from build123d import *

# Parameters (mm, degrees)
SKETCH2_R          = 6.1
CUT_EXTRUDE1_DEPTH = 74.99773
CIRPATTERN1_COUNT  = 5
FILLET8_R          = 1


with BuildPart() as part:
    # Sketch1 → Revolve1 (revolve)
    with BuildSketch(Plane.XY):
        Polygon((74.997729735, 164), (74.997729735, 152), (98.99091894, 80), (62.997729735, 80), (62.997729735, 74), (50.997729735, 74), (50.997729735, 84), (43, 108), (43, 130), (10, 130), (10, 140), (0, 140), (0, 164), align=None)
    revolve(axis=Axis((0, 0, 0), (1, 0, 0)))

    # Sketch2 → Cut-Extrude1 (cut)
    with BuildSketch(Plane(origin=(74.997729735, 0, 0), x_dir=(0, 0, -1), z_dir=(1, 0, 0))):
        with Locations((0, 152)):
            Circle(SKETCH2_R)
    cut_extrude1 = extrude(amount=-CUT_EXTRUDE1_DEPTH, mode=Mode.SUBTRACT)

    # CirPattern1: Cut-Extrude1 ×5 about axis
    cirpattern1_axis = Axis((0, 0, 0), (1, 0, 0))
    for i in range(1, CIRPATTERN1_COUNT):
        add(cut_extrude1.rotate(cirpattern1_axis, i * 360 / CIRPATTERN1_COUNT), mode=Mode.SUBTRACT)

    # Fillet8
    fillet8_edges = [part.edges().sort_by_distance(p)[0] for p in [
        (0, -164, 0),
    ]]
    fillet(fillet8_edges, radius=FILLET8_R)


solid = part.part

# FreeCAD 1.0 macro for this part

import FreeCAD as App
import Part
import Sketcher
from FreeCAD import Vector


def edges_at(feature, points):
    """Names of the edges that pass closest to the given points."""
    edges = feature.Shape.Edges
    near = lambda p: min(range(len(edges)), key=lambda i: edges[i].distToShape(Part.Vertex(*p))[0])
    return sorted({f"Edge{near(p) + 1}" for p in points})


def add_polygon(sketch, points):
    """Adds a closed chain of lines whose ends are joined by coincident constraints."""
    first, n = sketch.GeometryCount, len(points)
    for a, b in zip(points, points[1:] + points[:1]):
        sketch.addGeometry(Part.LineSegment(App.Vector(*a, 0), App.Vector(*b, 0)), False)
    for i in range(n):
        sketch.addConstraint(Sketcher.Constraint("Coincident", first + i, 2, first + (i + 1) % n, 1))

doc = App.newDocument("Part")
body = doc.addObject("PartDesign::Body", "Body")

sketch1 = doc.addObject("Sketcher::SketchObject", "Sketch")
body.addObject(sketch1)
sketch1.AttachmentSupport = (doc.XY_Plane, [""])
sketch1.MapMode = "FlatFace"
add_polygon(sketch1, [(75, 152), (75, 164), (0, 164), (0, 140), (10, 140), (10, 130), (43, 130), (43, 108), (51, 84), (51, 74), (63, 74), (63, 80), (99, 80)])
sketch1.addConstraint([
    Sketcher.Constraint("Vertical", 0),
    Sketcher.Constraint("Horizontal", 1),
    Sketcher.Constraint("Vertical", 2),
    Sketcher.Constraint("Horizontal", 3),
    Sketcher.Constraint("Vertical", 4),
    Sketcher.Constraint("Horizontal", 5),
    Sketcher.Constraint("Vertical", 6),
    Sketcher.Constraint("Vertical", 8),
    Sketcher.Constraint("Horizontal", 9),
    Sketcher.Constraint("Vertical", 10),
    Sketcher.Constraint("Horizontal", 11),
    Sketcher.Constraint("PointOnObject", 1, 2, -2),
    Sketcher.Constraint("Parallel", 7, 12),
    Sketcher.Constraint("Equal", 9, 0),
    Sketcher.Constraint("Equal", 3, 4),
    Sketcher.Constraint("Equal", 4, 8),
    Sketcher.Constraint("DistanceX", 3, 1, 3, 2, 10.0),
    Sketcher.Constraint("DistanceX", 5, 1, 5, 2, 33.0),
    Sketcher.Constraint("DistanceX", 9, 1, 9, 2, 12.0),
    Sketcher.Constraint("DistanceY", 2, 2, 2, 1, 24.0),
    Sketcher.Constraint("DistanceY", 6, 2, 6, 1, 22.0),
    Sketcher.Constraint("DistanceY", 10, 1, 10, 2, 6.0),
    Sketcher.Constraint("DistanceY", -1, 1, 0, 2, 164.0),
    Sketcher.Constraint("DistanceY", -1, 1, 7, 2, 84.0),
    Sketcher.Constraint("DistanceX", 1, 2, 1, 1, 74.99773),
    Sketcher.Constraint("DistanceX", 11, 1, 11, 2, 35.993189),
])
revolution = doc.addObject("PartDesign::Revolution", "Revolution")
body.addObject(revolution)
revolution.Profile = sketch1
revolution.ReferenceAxis = (sketch1, ["H_Axis"])
revolution.Angle = 360

sketch2 = doc.addObject("Sketcher::SketchObject", "Sketch001")
body.addObject(sketch2)
sketch2.AttachmentSupport = (doc.YZ_Plane, [""])
sketch2.MapMode = "FlatFace"
sketch2.AttachmentOffset = App.Placement(Vector(0, 0, 74.99773), App.Rotation())
sketch2.addGeometry(Part.Circle(Vector(152, 0, 0), Vector(0, 0, 1), 6), False)
sketch2.addConstraint([
    Sketcher.Constraint("PointOnObject", 0, 3, -1),
    Sketcher.Constraint("Diameter", 0, 12.2),
    Sketcher.Constraint("DistanceX", -1, 1, 0, 3, 152.0),
])
pocket1 = doc.addObject("PartDesign::Pocket", "Pocket")
body.addObject(pocket1)
pocket1.Profile = sketch2
pocket1.Length = 74.99773
doc.recompute()

polarpattern = doc.addObject("PartDesign::PolarPattern", "PolarPattern")
body.addObject(polarpattern)
polarpattern.Originals = [pocket1]
polarpattern.Axis = (doc.X_Axis, [""])
polarpattern.Angle = 360
polarpattern.Occurrences = 5
body.Tip = polarpattern
doc.recompute()

fillet = doc.addObject("PartDesign::Fillet", "Fillet")
body.addObject(fillet)
fillet.Base = (polarpattern, edges_at(polarpattern, [(0, -164, 0)]))
fillet.Radius = 1

doc.recompute()
